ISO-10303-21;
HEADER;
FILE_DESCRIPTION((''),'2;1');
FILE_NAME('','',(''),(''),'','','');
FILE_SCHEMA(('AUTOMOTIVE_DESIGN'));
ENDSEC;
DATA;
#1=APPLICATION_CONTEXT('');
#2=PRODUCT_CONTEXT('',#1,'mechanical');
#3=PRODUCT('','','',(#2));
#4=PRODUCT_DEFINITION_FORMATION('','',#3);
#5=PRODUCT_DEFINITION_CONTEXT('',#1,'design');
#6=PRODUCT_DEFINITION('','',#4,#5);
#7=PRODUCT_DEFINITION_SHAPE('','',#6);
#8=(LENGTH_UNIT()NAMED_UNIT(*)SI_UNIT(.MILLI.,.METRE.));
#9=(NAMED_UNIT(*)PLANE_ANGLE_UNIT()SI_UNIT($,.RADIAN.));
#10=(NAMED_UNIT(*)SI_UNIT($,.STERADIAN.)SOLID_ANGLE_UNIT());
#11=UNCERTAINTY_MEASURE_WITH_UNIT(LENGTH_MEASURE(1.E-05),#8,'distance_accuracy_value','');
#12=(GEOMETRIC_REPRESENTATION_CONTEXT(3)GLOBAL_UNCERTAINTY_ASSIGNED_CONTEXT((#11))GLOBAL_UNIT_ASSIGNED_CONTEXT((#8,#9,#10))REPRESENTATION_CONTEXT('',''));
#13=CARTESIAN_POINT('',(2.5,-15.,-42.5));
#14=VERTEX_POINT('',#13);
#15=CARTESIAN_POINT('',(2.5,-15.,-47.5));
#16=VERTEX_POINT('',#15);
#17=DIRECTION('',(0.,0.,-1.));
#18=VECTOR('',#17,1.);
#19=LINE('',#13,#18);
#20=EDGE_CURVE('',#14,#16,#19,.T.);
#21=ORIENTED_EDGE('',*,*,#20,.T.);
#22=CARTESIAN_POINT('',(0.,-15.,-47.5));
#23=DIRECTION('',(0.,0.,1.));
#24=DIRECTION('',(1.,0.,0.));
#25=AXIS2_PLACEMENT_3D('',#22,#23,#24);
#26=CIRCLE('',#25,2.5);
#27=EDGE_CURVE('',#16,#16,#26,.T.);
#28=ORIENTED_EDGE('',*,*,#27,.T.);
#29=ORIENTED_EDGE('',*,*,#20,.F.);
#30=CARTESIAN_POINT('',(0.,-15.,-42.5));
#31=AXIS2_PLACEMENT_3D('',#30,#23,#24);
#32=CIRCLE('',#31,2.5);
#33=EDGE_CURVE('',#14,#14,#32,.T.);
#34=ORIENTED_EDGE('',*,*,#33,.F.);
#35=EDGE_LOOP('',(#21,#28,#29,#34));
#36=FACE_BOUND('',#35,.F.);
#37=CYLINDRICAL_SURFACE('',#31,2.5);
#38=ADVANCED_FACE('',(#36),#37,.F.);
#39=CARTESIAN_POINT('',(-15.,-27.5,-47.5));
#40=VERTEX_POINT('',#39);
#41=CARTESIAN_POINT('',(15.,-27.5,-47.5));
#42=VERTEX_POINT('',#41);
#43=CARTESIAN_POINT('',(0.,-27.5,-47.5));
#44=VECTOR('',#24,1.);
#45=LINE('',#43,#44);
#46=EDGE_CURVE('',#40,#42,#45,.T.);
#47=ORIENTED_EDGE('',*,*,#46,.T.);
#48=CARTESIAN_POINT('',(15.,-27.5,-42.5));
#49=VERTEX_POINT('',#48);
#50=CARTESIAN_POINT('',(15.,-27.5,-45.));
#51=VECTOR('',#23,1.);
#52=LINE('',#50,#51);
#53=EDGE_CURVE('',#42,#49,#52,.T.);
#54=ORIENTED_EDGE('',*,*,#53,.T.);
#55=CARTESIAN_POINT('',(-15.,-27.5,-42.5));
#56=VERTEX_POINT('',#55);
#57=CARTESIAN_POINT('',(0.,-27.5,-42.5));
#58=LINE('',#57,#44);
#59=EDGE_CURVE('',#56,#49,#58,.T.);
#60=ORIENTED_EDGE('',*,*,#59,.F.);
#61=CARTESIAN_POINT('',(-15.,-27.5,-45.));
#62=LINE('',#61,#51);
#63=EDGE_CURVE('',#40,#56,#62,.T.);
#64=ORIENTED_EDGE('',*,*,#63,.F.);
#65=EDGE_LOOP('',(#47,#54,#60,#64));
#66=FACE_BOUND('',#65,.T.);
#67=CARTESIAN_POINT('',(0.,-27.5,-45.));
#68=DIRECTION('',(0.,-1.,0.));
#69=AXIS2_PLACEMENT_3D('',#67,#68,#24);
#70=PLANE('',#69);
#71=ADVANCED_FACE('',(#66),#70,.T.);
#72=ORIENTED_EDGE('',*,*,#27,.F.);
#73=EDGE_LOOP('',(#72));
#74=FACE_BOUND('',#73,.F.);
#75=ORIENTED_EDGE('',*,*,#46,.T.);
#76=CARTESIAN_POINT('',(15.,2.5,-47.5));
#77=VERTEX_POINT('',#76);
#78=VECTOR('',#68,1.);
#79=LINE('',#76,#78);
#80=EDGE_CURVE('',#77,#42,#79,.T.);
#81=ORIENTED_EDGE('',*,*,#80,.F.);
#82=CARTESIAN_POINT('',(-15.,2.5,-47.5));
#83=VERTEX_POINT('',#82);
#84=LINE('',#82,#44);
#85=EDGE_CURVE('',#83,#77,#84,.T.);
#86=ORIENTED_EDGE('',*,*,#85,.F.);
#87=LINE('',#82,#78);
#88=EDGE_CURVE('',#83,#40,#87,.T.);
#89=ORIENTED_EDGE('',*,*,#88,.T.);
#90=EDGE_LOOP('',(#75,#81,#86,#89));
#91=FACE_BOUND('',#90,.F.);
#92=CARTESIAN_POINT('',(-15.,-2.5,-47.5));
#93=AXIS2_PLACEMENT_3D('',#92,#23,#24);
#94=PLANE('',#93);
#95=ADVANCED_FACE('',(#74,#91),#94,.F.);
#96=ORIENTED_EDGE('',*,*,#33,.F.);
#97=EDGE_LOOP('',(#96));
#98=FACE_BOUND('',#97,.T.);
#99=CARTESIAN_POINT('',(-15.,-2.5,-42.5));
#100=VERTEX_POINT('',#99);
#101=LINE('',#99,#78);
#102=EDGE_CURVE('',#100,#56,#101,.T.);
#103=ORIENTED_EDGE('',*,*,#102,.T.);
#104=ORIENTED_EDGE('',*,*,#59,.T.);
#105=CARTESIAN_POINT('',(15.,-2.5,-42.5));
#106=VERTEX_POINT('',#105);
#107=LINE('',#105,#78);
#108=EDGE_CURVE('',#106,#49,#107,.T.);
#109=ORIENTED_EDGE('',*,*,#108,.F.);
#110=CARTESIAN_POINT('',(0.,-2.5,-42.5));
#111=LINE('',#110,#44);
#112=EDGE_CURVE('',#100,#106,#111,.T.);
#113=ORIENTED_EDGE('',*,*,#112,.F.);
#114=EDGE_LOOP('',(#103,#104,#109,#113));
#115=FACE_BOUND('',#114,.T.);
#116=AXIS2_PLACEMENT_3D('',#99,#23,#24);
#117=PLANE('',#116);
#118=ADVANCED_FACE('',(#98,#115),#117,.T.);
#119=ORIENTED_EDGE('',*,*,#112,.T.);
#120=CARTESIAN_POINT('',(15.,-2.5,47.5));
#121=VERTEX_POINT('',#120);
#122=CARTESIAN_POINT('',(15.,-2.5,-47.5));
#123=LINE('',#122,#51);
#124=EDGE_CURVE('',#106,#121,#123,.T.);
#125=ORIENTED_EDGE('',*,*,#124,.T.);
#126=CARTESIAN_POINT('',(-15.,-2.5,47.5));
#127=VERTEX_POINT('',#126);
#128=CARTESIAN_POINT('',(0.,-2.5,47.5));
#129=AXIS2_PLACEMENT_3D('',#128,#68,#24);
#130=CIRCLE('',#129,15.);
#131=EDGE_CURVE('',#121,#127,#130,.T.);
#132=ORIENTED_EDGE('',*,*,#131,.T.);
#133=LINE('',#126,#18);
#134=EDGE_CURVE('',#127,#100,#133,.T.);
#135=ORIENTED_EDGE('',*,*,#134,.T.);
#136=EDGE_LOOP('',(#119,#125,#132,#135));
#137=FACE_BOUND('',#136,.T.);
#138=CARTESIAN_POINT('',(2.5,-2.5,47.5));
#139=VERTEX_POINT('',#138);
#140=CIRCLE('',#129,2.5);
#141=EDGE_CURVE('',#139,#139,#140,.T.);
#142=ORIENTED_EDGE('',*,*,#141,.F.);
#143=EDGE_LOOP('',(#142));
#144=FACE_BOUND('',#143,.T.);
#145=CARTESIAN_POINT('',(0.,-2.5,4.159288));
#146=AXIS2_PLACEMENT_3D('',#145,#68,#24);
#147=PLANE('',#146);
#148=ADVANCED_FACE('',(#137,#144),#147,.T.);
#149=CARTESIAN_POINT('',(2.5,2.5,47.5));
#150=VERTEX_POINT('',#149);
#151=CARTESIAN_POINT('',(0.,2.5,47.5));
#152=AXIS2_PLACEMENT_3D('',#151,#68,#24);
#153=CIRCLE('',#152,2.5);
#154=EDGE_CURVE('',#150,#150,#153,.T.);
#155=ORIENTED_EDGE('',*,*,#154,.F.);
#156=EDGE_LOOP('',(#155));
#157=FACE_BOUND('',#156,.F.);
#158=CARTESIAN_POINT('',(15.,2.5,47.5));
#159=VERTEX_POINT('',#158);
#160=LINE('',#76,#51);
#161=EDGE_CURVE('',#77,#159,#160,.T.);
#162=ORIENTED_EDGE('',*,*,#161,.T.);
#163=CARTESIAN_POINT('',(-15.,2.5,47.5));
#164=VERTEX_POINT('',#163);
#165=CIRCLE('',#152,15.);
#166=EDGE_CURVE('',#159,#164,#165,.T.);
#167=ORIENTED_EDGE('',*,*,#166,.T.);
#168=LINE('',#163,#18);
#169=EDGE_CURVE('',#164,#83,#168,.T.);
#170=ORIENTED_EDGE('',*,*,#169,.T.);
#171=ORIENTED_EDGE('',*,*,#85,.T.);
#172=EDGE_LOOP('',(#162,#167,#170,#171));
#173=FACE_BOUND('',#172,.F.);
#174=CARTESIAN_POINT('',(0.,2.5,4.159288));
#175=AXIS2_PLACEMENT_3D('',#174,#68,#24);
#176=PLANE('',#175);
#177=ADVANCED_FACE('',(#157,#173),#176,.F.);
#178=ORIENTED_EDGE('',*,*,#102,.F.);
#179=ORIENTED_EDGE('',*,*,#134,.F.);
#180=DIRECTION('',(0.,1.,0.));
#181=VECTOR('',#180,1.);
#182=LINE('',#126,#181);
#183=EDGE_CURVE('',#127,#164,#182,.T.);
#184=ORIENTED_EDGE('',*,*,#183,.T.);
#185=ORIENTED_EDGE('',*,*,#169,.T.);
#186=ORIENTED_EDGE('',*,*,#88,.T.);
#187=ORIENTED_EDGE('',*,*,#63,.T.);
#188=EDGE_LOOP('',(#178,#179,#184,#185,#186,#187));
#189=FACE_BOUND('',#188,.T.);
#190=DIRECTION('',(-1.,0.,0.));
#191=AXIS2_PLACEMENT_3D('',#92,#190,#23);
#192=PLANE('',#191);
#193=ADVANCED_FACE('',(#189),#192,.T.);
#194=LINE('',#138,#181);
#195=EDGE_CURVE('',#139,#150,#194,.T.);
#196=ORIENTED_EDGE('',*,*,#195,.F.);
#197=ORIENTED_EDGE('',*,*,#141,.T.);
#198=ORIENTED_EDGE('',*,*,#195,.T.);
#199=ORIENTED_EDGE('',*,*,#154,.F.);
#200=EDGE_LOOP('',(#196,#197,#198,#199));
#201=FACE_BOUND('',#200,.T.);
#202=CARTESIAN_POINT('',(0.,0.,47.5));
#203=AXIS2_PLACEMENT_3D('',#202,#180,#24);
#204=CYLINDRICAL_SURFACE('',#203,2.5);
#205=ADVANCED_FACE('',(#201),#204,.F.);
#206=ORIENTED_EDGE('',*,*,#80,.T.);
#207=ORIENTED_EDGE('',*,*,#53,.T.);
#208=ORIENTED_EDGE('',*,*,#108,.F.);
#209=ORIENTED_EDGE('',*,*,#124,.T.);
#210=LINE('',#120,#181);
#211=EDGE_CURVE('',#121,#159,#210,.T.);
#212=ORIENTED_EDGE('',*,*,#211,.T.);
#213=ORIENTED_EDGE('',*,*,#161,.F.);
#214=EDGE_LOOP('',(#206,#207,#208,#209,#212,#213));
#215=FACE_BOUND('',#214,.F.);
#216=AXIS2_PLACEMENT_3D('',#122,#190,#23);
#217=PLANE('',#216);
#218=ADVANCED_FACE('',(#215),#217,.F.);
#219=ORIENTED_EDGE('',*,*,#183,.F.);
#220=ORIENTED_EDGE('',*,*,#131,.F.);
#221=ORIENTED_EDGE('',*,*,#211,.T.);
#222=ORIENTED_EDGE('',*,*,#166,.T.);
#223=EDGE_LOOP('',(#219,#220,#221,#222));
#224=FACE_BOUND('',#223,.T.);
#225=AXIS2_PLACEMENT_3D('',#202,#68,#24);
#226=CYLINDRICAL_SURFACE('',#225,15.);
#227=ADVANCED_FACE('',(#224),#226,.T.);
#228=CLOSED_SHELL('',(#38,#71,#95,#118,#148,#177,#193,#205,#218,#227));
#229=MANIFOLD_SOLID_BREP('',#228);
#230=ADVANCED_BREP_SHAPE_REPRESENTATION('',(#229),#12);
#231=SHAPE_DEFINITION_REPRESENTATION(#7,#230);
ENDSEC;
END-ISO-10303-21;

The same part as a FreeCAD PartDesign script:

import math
import FreeCAD as App
import Part
import Sketcher

V = App.Vector

doc = App.newDocument("Part")
body = doc.addObject("PartDesign::Body", "Body")

# Sketch on XZ plane
sketch1 = body.newObject("Sketcher::SketchObject", "Sketch")
sketch1.AttachmentSupport = (doc.getObject("XZ_Plane"), [""])
sketch1.MapMode = "FlatFace"
sketch1.addGeometry([
    Part.LineSegment(V(-15, 47.5, 0), V(-15, -47.5, 0)),  # 0
    Part.LineSegment(V(-15, -47.5, 0), V(15, -47.5, 0)),  # 1
    Part.LineSegment(V(15, -47.5, 0), V(15, 47.5, 0)),  # 2
    Part.ArcOfCircle(Part.Circle(V(0, 47.5, 0), V(0, 0, 1), 15), math.radians(0), math.radians(180)),  # 3
    Part.Circle(V(0, 47.5, 0), V(0, 0, 1), 2.5),  # 4
], False)
sketch1.addConstraint([
    Sketcher.Constraint("Coincident", 0, 2, 1, 1),
    Sketcher.Constraint("Coincident", 1, 2, 2, 1),
    Sketcher.Constraint("Tangent", 2, 2, 3, 1),
    Sketcher.Constraint("Tangent", 3, 2, 0, 1),
    Sketcher.Constraint("Vertical", 0),
    Sketcher.Constraint("Horizontal", 1),
    Sketcher.Constraint("Vertical", 2),
    Sketcher.Constraint("Coincident", 4, 3, 3, 3),
    Sketcher.Constraint("Symmetric", 0, 2, 2, 2, -1, 1),
    Sketcher.Constraint("Diameter", 4, 5.0),
    Sketcher.Constraint("Radius", 3, 15.0),
    Sketcher.Constraint("DistanceY", 0, 2, 0, 1, 95.0),
])
pad1 = body.newObject("PartDesign::Pad", "Pad")
pad1.Profile = sketch1
pad1.Length = 5
pad1.Midplane = True

# Sketch on XZ plane
sketch2 = body.newObject("Sketcher::SketchObject", "Sketch001")
sketch2.AttachmentSupport = (doc.getObject("XZ_Plane"), [""])
sketch2.MapMode = "FlatFace"
sketch2.AttachmentOffset = App.Placement(V(0, 0, 2.5), App.Rotation())
sketch2.addGeometry([
    Part.LineSegment(V(-15, -42.5, 0), V(-15, -47.5, 0)),
    Part.LineSegment(V(-15, -47.5, 0), V(15, -47.5, 0)),
    Part.LineSegment(V(15, -47.5, 0), V(15, -42.5, 0)),
    Part.LineSegment(V(15, -42.5, 0), V(-15, -42.5, 0)),
], False)
sketch2.addConstraint([
    Sketcher.Constraint("Coincident", 0, 2, 1, 1),
    Sketcher.Constraint("Coincident", 1, 2, 2, 1),
    Sketcher.Constraint("Coincident", 2, 2, 3, 1),
    Sketcher.Constraint("Coincident", 3, 2, 0, 1),
    Sketcher.Constraint("Vertical", 0),
    Sketcher.Constraint("Horizontal", 1),
    Sketcher.Constraint("Vertical", 2),
    Sketcher.Constraint("Horizontal", 3),
    Sketcher.Constraint("DistanceX", 1, 1, 1, 2, 30.0),
    Sketcher.Constraint("DistanceY", 0, 2, 0, 1, 5.0),
    Sketcher.Constraint("DistanceX", 0, 2, -1, 1, 15.0),
    Sketcher.Constraint("DistanceY", 0, 2, -1, 1, 47.5),
])
pad2 = body.newObject("PartDesign::Pad", "Pad001")
pad2.Profile = sketch2
pad2.Length = 25

# Sketch on XY plane
sketch3 = body.newObject("Sketcher::SketchObject", "Sketch002")
sketch3.AttachmentSupport = (doc.getObject("XY_Plane"), [""])
sketch3.MapMode = "FlatFace"
sketch3.AttachmentOffset = App.Placement(V(0, 0, -42.5), App.Rotation())
sketch3.addGeometry(Part.Circle(V(0, -15, 0), V(0, 0, 1), 2.5), False)
sketch3.addConstraint([
    Sketcher.Constraint("PointOnObject", 0, 3, -2),
    Sketcher.Constraint("Diameter", 0, 5.0),
    Sketcher.Constraint("DistanceY", 0, 3, -1, 1, 15.0),
])
pocket1 = body.newObject("PartDesign::Pocket", "Pocket")
pocket1.Profile = sketch3
pocket1.Type = "ThroughAll"

doc.recompute()
